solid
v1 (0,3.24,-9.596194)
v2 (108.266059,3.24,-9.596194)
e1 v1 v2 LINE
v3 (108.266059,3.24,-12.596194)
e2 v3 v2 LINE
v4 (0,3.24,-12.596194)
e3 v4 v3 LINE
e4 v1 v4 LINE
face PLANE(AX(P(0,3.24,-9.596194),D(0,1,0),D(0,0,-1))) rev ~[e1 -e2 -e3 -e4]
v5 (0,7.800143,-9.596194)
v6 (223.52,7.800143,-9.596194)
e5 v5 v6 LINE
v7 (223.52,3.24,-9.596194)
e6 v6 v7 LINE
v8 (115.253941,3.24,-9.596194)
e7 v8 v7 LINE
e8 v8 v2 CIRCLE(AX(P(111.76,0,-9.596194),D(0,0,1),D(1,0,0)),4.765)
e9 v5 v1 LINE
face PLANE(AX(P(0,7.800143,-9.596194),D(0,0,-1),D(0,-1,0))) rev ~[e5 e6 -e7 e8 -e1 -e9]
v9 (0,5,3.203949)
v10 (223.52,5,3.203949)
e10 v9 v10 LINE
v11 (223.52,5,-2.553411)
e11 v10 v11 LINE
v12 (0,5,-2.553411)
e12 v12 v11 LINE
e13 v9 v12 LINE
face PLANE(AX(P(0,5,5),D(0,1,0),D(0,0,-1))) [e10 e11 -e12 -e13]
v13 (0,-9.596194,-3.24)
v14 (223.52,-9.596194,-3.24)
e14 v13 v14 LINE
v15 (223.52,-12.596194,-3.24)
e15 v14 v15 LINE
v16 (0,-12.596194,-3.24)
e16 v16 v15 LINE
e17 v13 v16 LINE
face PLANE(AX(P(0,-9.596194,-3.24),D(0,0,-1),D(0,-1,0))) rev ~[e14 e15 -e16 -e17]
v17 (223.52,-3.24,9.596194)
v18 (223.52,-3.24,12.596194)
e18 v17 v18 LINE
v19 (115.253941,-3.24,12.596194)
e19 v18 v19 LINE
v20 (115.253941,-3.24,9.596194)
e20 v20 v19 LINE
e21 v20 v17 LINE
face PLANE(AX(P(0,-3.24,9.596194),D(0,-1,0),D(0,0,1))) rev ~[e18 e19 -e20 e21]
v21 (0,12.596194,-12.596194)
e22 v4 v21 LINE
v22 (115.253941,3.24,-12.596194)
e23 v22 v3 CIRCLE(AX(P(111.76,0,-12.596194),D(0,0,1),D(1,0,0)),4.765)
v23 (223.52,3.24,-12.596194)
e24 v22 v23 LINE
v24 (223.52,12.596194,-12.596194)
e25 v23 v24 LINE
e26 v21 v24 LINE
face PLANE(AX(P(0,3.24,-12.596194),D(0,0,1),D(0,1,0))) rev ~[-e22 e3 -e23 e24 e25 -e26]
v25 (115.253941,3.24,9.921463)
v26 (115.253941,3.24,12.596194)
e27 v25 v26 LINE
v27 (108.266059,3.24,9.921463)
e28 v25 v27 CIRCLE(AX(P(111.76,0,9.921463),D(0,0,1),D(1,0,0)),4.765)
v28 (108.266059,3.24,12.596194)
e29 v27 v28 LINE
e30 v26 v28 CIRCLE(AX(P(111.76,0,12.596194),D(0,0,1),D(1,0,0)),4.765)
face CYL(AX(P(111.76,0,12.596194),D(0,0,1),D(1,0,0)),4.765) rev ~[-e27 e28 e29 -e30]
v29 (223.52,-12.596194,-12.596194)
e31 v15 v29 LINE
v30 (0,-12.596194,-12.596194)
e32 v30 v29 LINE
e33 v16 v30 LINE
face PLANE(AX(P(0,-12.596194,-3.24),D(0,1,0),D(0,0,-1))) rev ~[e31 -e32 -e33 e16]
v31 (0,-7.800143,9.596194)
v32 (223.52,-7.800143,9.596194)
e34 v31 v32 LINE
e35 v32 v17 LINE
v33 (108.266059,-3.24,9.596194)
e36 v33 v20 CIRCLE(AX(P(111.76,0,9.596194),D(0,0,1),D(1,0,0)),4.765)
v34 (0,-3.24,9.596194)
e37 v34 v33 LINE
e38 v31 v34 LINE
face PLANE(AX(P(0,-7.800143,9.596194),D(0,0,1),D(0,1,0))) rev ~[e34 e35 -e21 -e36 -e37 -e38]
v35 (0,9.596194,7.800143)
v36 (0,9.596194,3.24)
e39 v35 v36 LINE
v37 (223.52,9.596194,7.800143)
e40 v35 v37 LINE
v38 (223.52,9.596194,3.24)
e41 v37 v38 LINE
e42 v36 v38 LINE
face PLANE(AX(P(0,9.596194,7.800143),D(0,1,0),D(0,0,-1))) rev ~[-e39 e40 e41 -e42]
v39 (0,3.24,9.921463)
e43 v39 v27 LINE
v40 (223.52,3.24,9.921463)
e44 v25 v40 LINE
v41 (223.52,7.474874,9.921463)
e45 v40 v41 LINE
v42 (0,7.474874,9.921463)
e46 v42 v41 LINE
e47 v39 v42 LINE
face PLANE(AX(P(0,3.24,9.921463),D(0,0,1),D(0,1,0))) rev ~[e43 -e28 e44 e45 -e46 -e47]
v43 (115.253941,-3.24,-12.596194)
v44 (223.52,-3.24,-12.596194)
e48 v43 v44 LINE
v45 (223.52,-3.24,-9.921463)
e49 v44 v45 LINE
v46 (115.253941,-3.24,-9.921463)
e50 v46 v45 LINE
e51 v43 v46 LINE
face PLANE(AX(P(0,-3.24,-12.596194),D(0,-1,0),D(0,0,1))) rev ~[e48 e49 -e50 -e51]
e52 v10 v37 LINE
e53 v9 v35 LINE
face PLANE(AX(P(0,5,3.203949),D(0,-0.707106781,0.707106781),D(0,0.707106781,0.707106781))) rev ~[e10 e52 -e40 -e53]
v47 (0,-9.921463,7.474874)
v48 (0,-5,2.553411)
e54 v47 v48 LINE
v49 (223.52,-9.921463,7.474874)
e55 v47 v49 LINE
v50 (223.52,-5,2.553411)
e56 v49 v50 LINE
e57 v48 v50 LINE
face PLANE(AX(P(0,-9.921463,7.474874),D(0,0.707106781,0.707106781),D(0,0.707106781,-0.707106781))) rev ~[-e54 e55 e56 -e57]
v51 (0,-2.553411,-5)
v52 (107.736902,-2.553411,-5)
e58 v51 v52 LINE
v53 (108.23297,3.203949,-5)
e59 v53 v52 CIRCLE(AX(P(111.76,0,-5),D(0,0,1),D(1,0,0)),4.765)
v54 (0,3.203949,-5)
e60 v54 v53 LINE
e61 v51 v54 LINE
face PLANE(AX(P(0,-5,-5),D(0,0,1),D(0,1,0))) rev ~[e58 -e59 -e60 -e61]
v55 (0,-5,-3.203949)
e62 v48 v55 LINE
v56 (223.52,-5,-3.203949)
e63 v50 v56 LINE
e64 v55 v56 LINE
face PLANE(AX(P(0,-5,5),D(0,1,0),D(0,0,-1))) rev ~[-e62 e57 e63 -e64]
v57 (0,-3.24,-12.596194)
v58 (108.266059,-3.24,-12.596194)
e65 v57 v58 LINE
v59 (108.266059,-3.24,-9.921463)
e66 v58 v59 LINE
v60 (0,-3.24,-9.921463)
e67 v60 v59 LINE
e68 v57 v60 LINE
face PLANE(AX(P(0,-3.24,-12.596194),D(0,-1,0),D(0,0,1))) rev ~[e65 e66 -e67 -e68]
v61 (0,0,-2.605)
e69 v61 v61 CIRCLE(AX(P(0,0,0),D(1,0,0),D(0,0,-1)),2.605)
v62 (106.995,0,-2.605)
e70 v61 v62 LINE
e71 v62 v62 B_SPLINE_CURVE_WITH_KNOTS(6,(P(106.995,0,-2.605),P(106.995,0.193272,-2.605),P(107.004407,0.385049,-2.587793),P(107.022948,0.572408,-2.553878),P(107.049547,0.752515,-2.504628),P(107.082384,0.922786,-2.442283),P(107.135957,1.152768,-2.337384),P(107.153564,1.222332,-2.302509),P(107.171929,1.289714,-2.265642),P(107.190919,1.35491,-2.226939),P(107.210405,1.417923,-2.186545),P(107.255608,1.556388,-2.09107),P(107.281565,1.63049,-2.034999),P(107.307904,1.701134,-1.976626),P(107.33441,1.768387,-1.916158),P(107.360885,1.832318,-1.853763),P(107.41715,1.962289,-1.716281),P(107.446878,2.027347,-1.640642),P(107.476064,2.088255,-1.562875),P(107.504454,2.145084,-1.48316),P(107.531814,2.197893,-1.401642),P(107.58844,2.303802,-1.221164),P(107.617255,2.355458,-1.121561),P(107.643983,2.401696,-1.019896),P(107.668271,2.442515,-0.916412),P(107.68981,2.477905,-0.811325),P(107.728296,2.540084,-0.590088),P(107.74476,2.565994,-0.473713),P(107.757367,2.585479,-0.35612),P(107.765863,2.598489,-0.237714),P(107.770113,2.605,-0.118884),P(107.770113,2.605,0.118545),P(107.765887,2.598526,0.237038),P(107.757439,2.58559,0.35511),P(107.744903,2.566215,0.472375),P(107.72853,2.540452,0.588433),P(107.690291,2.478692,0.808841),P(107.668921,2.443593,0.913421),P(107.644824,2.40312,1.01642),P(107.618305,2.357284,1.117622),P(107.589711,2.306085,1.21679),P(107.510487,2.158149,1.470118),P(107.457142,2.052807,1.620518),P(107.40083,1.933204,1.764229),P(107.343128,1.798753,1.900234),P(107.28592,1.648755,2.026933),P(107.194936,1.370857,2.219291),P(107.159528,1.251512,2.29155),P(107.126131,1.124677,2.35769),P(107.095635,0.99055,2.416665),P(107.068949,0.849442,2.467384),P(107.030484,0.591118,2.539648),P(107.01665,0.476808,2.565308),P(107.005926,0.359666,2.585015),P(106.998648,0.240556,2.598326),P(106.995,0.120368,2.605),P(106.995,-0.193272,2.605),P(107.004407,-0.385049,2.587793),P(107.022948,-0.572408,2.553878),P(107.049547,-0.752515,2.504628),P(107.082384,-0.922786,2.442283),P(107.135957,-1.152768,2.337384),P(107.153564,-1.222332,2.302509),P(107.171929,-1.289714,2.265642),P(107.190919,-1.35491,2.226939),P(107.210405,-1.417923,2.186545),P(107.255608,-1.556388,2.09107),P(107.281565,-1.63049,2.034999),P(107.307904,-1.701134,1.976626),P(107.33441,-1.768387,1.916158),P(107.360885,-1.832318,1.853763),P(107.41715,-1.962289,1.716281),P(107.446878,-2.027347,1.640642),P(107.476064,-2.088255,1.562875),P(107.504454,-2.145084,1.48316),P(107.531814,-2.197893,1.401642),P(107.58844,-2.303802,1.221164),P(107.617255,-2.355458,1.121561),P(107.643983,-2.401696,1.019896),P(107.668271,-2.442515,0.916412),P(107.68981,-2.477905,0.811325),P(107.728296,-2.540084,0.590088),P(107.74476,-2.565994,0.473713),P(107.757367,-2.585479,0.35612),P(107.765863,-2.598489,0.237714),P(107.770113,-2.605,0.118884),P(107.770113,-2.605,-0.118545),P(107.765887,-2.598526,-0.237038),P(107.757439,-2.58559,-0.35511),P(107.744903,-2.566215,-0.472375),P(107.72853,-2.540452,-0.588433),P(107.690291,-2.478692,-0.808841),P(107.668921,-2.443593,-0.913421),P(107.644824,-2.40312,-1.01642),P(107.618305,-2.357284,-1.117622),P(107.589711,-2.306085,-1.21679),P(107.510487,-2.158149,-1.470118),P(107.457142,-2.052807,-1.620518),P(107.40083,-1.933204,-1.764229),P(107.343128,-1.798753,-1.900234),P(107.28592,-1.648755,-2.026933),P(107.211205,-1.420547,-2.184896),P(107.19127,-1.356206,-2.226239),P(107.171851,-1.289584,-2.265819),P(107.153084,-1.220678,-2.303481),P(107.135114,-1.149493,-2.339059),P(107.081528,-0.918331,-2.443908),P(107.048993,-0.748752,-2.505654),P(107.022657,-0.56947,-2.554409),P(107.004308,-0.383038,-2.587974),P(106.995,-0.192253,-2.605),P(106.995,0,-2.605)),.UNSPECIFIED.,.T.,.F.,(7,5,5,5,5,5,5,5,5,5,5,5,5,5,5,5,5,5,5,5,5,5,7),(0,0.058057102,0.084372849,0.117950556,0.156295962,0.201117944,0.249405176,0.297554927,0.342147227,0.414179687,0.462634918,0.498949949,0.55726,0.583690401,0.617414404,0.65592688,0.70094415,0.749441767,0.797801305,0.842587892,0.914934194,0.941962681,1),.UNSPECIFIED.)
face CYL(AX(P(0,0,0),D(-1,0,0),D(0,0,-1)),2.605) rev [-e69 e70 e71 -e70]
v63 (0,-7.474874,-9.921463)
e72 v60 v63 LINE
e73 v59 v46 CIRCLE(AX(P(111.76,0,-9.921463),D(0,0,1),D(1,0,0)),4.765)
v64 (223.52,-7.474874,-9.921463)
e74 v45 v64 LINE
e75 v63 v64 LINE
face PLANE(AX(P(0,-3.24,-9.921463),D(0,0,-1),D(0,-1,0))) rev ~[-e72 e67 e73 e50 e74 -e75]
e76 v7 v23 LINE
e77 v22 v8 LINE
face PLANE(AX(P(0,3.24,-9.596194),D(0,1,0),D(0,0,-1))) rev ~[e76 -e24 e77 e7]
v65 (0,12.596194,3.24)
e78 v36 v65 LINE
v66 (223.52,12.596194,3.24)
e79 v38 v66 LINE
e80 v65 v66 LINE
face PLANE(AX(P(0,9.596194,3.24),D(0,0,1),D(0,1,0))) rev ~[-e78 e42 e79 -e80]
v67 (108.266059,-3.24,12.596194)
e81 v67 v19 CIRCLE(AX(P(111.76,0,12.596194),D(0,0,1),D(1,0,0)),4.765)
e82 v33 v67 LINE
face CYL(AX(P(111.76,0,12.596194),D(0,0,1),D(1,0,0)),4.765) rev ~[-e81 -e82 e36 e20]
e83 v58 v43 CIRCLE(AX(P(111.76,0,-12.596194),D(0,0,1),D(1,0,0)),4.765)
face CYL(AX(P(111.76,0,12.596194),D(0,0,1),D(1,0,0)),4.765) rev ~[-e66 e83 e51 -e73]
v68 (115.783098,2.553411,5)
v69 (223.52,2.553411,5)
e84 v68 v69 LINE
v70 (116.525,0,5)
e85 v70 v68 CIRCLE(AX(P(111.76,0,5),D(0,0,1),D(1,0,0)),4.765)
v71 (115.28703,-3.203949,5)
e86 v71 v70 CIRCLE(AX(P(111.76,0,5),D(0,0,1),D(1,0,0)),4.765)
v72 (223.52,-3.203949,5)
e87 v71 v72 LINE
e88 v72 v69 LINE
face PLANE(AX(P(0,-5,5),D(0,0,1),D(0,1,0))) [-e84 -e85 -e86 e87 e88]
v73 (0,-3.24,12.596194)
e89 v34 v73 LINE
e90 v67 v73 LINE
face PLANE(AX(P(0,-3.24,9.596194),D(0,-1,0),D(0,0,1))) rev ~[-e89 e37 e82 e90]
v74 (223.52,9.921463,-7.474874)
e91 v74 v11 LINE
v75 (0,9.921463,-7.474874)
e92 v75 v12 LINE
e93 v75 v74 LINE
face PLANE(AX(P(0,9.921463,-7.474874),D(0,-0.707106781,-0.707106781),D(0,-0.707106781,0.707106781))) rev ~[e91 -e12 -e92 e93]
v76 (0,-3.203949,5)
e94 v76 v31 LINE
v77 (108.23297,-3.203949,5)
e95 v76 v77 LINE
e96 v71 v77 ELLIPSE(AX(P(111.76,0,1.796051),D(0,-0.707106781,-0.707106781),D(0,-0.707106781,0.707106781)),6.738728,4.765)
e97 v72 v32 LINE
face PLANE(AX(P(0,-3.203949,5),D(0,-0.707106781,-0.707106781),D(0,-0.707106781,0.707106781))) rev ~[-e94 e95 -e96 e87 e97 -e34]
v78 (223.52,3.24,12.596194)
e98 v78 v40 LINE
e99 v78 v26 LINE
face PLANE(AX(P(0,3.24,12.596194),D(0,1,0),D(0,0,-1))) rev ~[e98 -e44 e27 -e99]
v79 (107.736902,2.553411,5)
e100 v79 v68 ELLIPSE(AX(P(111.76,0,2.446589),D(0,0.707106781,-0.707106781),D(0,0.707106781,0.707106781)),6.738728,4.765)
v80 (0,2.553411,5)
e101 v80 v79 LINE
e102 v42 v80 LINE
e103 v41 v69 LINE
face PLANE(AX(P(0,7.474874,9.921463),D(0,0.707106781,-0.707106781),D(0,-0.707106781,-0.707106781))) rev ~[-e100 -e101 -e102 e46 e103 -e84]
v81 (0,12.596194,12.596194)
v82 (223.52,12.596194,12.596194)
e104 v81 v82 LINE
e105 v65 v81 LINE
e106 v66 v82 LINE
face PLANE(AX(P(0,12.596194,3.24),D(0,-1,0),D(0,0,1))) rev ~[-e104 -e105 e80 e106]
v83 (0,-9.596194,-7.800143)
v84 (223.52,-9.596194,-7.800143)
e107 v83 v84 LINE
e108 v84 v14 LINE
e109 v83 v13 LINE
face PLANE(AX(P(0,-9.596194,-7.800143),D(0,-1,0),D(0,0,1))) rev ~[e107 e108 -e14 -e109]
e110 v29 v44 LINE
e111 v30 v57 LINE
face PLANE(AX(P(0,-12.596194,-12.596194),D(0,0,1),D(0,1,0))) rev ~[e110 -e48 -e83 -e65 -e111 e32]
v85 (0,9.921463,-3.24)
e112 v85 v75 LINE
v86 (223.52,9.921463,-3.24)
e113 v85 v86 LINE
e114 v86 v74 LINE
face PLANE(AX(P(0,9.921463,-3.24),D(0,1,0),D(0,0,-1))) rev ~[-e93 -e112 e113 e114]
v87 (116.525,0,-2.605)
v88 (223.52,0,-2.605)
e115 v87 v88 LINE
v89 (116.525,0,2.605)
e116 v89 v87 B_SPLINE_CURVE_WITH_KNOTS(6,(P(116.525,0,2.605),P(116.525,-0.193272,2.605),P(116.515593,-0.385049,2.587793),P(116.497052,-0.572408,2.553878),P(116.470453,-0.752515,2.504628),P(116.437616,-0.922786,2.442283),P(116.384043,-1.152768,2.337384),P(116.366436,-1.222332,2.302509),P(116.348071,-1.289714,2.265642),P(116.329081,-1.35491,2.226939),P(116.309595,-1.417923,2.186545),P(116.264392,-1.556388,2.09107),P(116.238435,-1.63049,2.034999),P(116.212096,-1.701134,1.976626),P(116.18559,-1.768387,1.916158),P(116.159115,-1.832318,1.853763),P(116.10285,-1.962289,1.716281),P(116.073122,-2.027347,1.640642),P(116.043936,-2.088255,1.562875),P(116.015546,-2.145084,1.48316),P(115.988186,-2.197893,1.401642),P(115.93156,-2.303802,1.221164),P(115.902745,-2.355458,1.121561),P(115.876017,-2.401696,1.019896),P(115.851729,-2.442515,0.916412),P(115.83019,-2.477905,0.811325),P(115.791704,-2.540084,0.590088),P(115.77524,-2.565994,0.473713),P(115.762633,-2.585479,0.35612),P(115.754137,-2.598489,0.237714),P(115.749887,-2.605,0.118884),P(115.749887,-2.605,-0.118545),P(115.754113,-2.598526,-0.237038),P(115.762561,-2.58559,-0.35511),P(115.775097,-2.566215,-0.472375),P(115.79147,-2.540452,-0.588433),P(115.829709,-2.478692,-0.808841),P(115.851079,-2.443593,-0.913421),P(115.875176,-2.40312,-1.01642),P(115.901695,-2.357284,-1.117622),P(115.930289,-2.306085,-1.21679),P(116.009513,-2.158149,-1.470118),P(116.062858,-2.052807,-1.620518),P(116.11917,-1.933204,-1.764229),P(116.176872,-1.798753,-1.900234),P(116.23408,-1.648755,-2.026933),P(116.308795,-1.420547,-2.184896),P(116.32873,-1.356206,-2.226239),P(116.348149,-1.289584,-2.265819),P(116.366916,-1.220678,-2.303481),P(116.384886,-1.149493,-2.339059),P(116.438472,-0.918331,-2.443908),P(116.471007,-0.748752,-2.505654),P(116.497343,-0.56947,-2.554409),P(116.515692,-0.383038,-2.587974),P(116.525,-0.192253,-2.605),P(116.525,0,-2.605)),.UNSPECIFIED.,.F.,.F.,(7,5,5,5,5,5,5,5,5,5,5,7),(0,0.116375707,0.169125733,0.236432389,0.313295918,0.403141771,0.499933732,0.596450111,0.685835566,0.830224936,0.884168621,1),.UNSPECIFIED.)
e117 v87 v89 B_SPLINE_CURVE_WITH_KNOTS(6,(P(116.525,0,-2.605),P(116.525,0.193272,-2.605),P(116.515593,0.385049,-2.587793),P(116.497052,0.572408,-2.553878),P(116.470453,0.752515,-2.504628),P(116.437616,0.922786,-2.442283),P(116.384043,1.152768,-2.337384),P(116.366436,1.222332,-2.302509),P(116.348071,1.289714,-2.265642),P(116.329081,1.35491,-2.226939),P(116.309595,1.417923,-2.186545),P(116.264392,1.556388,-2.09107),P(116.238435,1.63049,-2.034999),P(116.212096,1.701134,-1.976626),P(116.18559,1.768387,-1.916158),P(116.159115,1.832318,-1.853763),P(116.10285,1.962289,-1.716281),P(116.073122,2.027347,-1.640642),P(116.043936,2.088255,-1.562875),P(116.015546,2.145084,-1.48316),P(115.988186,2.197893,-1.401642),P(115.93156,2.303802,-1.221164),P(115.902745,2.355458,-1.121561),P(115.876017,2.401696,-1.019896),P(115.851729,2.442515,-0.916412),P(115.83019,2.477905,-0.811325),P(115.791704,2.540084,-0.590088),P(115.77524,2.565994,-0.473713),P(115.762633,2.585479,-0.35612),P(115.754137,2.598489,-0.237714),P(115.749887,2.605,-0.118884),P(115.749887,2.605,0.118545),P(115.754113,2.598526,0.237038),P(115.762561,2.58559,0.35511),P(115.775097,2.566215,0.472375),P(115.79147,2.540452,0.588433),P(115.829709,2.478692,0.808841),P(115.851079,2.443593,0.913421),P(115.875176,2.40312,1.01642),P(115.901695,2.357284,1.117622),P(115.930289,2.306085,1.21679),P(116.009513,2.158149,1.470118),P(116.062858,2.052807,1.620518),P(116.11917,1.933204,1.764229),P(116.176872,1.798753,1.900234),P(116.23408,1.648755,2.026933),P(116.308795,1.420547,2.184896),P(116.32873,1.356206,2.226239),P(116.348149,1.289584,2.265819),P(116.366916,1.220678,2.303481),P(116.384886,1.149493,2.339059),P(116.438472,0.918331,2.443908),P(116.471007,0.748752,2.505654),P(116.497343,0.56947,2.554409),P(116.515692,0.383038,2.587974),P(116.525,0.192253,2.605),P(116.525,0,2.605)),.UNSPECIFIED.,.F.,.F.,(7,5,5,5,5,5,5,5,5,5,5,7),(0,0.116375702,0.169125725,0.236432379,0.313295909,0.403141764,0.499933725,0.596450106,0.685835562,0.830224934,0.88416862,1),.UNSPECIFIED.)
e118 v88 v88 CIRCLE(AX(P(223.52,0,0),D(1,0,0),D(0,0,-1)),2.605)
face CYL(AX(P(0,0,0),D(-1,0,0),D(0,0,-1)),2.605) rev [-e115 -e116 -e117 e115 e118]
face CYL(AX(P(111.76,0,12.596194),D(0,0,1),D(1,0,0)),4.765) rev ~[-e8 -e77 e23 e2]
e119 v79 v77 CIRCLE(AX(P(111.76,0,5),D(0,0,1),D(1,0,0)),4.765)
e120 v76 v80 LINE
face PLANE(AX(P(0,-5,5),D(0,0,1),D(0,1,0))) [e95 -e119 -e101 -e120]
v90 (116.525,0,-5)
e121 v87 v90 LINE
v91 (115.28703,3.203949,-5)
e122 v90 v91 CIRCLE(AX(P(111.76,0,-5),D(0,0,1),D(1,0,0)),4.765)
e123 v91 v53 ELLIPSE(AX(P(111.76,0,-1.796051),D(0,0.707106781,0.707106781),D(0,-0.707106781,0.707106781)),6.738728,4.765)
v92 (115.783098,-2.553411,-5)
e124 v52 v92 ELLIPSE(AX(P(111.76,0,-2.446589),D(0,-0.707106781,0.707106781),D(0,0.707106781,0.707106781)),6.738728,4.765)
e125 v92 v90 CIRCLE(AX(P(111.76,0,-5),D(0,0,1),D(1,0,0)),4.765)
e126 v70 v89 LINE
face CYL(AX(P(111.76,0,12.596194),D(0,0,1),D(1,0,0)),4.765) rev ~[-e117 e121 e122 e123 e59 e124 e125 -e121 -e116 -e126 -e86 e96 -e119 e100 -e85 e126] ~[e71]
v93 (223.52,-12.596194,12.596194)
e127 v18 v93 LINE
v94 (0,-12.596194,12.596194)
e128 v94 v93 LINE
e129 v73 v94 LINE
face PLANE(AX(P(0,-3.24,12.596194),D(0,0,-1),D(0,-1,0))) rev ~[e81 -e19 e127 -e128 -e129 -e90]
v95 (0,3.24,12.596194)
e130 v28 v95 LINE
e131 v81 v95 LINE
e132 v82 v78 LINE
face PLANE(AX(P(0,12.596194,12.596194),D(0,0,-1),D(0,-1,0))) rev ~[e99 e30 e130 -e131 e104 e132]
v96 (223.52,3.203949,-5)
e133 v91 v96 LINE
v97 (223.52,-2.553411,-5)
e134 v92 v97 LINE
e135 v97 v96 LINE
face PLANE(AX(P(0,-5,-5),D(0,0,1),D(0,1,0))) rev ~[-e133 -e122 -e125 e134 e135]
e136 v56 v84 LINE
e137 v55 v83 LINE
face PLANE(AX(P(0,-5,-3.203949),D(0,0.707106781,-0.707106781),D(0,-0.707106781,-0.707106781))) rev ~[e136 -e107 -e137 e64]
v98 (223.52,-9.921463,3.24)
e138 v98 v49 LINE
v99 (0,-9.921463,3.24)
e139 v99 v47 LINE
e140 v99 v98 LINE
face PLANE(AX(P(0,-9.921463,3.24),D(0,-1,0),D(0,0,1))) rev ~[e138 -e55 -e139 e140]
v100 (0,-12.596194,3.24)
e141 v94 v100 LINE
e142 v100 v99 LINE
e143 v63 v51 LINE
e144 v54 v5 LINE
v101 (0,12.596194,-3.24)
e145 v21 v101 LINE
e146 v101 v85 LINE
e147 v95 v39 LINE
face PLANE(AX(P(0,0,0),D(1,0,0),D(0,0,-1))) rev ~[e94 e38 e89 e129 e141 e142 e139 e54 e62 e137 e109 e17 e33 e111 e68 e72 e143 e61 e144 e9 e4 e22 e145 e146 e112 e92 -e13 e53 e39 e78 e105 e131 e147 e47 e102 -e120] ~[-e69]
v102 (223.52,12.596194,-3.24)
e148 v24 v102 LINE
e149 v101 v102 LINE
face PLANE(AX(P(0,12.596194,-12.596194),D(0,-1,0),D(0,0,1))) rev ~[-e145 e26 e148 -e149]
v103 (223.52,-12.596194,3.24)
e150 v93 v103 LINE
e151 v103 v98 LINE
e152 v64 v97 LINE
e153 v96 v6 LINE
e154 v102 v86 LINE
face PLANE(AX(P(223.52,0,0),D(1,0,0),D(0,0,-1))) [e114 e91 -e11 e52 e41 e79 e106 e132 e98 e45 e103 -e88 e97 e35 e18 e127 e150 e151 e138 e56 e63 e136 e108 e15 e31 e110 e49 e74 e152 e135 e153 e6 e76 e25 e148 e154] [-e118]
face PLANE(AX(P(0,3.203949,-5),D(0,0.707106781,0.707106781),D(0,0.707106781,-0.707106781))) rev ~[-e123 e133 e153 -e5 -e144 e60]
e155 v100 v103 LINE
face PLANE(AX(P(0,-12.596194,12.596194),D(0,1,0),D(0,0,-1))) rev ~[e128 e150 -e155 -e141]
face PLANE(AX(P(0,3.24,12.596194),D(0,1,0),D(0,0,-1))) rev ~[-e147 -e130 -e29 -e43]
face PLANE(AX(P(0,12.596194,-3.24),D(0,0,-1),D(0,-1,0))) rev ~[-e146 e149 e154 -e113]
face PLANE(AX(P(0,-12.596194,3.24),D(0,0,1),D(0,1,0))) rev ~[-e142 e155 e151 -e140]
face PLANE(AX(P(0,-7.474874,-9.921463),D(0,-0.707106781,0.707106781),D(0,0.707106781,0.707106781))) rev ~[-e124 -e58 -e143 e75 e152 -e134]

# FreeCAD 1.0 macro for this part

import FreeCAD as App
import Part
import Sketcher
from FreeCAD import Vector
Q = App.Units.Quantity


def add_polygon(sketch, points):
    """Adds a closed chain of lines whose ends are joined by coincident constraints."""
    first, n = sketch.GeometryCount, len(points)
    for a, b in zip(points, points[1:] + points[:1]):
        sketch.addGeometry(Part.LineSegment(App.Vector(*a, 0), App.Vector(*b, 0)), False)
    for i in range(n):
        sketch.addConstraint(Sketcher.Constraint("Coincident", first + i, 2, first + (i + 1) % n, 1))

doc = App.newDocument("Part")
body = doc.addObject("PartDesign::Body", "Body")

# Sketch on YZ plane
sketch1 = doc.addObject("Sketcher::SketchObject", "Sketch")
body.addObject(sketch1)
sketch1.AttachmentSupport = (doc.YZ_Plane, [""])
sketch1.MapMode = "FlatFace"
add_polygon(sketch1, [(5, 5), (-5, 5), (-5, -5), (3.2, -5), (7.8, -9.6), (3.2, -9.6), (3.2, -12.6), (12.6, -12.6), (12.6, -3.2), (9.9, -3.2), (9.9, -7.5), (5, -2.6)])  # lines 0-11
sketch1.addGeometry(Part.Circle(Vector(0, 0, 0), Vector(0, 0, 1), 2.6), False)  # 12
sketch1.addConstraint([
    Sketcher.Constraint("Horizontal", 0),
    Sketcher.Constraint("Vertical", 1),
    Sketcher.Constraint("Horizontal", 2),
    Sketcher.Constraint("Horizontal", 4),
    Sketcher.Constraint("Vertical", 5),
    Sketcher.Constraint("Horizontal", 6),
    Sketcher.Constraint("Vertical", 7),
    Sketcher.Constraint("Horizontal", 8),
    Sketcher.Constraint("Vertical", 9),
    Sketcher.Constraint("Vertical", 11),
    Sketcher.Constraint("Coincident", 12, 3, -1, 1),
    Sketcher.Constraint("Symmetric", 1, 2, 11, 2, -1, 1),
    Sketcher.Constraint("Parallel", 3, 10),
    Sketcher.Constraint("Equal", 0, 1),
    Sketcher.Constraint("Equal", 6, 7),
    Sketcher.Constraint("Diameter", 12, 5.21),
    Sketcher.Constraint("DistanceX", 0, 2, 0, 1, 10.0),
    Sketcher.Constraint("DistanceY", 5, 2, 5, 1, 3.0),
    Sketcher.Constraint("Angle", 3, Q("-45 deg")),
    Sketcher.Constraint("Distance", 3, 6.5),
    Sketcher.Constraint("Distance", 10, 6.96),
    Sketcher.Constraint("DistanceX", -1, 1, 4, 2, 3.24),
    Sketcher.Constraint("DistanceY", 7, 2, -1, 1, 3.24),
    Sketcher.Constraint("DistanceX", 2, 1, 2, 2, 8.203949),
    Sketcher.Constraint("DistanceY", 11, 1, 11, 2, 7.553411),
])
pad1 = doc.addObject("PartDesign::Pad", "Pad")
body.addObject(pad1)
pad1.Profile = sketch1
pad1.Length = 223.52
doc.recompute()

polarpattern = doc.addObject("PartDesign::PolarPattern", "PolarPattern")
body.addObject(polarpattern)
polarpattern.Originals = [pad1]
polarpattern.Axis = (doc.X_Axis, [""])
polarpattern.Angle = 360
polarpattern.Occurrences = 4
body.Tip = polarpattern

# Sketch on XY plane
sketch2 = doc.addObject("Sketcher::SketchObject", "Sketch001")
body.addObject(sketch2)
sketch2.AttachmentSupport = (doc.XY_Plane, [""])
sketch2.MapMode = "FlatFace"
sketch2.AttachmentOffset = App.Placement(Vector(0, 0, 12.596194), App.Rotation())
sketch2.addGeometry(Part.Circle(Vector(111.8, 0, 0), Vector(0, 0, 1), 4.8), False)
sketch2.addConstraint([
    Sketcher.Constraint("PointOnObject", 0, 3, -1),
    Sketcher.Constraint("Diameter", 0, 9.53),
    Sketcher.Constraint("DistanceX", -1, 1, 0, 3, 111.76),
])
pocket1 = doc.addObject("PartDesign::Pocket", "Pocket")
body.addObject(pocket1)
pocket1.Profile = sketch2
pocket1.Type = "ThroughAll"
pocket1.Midplane = True

doc.recompute()
